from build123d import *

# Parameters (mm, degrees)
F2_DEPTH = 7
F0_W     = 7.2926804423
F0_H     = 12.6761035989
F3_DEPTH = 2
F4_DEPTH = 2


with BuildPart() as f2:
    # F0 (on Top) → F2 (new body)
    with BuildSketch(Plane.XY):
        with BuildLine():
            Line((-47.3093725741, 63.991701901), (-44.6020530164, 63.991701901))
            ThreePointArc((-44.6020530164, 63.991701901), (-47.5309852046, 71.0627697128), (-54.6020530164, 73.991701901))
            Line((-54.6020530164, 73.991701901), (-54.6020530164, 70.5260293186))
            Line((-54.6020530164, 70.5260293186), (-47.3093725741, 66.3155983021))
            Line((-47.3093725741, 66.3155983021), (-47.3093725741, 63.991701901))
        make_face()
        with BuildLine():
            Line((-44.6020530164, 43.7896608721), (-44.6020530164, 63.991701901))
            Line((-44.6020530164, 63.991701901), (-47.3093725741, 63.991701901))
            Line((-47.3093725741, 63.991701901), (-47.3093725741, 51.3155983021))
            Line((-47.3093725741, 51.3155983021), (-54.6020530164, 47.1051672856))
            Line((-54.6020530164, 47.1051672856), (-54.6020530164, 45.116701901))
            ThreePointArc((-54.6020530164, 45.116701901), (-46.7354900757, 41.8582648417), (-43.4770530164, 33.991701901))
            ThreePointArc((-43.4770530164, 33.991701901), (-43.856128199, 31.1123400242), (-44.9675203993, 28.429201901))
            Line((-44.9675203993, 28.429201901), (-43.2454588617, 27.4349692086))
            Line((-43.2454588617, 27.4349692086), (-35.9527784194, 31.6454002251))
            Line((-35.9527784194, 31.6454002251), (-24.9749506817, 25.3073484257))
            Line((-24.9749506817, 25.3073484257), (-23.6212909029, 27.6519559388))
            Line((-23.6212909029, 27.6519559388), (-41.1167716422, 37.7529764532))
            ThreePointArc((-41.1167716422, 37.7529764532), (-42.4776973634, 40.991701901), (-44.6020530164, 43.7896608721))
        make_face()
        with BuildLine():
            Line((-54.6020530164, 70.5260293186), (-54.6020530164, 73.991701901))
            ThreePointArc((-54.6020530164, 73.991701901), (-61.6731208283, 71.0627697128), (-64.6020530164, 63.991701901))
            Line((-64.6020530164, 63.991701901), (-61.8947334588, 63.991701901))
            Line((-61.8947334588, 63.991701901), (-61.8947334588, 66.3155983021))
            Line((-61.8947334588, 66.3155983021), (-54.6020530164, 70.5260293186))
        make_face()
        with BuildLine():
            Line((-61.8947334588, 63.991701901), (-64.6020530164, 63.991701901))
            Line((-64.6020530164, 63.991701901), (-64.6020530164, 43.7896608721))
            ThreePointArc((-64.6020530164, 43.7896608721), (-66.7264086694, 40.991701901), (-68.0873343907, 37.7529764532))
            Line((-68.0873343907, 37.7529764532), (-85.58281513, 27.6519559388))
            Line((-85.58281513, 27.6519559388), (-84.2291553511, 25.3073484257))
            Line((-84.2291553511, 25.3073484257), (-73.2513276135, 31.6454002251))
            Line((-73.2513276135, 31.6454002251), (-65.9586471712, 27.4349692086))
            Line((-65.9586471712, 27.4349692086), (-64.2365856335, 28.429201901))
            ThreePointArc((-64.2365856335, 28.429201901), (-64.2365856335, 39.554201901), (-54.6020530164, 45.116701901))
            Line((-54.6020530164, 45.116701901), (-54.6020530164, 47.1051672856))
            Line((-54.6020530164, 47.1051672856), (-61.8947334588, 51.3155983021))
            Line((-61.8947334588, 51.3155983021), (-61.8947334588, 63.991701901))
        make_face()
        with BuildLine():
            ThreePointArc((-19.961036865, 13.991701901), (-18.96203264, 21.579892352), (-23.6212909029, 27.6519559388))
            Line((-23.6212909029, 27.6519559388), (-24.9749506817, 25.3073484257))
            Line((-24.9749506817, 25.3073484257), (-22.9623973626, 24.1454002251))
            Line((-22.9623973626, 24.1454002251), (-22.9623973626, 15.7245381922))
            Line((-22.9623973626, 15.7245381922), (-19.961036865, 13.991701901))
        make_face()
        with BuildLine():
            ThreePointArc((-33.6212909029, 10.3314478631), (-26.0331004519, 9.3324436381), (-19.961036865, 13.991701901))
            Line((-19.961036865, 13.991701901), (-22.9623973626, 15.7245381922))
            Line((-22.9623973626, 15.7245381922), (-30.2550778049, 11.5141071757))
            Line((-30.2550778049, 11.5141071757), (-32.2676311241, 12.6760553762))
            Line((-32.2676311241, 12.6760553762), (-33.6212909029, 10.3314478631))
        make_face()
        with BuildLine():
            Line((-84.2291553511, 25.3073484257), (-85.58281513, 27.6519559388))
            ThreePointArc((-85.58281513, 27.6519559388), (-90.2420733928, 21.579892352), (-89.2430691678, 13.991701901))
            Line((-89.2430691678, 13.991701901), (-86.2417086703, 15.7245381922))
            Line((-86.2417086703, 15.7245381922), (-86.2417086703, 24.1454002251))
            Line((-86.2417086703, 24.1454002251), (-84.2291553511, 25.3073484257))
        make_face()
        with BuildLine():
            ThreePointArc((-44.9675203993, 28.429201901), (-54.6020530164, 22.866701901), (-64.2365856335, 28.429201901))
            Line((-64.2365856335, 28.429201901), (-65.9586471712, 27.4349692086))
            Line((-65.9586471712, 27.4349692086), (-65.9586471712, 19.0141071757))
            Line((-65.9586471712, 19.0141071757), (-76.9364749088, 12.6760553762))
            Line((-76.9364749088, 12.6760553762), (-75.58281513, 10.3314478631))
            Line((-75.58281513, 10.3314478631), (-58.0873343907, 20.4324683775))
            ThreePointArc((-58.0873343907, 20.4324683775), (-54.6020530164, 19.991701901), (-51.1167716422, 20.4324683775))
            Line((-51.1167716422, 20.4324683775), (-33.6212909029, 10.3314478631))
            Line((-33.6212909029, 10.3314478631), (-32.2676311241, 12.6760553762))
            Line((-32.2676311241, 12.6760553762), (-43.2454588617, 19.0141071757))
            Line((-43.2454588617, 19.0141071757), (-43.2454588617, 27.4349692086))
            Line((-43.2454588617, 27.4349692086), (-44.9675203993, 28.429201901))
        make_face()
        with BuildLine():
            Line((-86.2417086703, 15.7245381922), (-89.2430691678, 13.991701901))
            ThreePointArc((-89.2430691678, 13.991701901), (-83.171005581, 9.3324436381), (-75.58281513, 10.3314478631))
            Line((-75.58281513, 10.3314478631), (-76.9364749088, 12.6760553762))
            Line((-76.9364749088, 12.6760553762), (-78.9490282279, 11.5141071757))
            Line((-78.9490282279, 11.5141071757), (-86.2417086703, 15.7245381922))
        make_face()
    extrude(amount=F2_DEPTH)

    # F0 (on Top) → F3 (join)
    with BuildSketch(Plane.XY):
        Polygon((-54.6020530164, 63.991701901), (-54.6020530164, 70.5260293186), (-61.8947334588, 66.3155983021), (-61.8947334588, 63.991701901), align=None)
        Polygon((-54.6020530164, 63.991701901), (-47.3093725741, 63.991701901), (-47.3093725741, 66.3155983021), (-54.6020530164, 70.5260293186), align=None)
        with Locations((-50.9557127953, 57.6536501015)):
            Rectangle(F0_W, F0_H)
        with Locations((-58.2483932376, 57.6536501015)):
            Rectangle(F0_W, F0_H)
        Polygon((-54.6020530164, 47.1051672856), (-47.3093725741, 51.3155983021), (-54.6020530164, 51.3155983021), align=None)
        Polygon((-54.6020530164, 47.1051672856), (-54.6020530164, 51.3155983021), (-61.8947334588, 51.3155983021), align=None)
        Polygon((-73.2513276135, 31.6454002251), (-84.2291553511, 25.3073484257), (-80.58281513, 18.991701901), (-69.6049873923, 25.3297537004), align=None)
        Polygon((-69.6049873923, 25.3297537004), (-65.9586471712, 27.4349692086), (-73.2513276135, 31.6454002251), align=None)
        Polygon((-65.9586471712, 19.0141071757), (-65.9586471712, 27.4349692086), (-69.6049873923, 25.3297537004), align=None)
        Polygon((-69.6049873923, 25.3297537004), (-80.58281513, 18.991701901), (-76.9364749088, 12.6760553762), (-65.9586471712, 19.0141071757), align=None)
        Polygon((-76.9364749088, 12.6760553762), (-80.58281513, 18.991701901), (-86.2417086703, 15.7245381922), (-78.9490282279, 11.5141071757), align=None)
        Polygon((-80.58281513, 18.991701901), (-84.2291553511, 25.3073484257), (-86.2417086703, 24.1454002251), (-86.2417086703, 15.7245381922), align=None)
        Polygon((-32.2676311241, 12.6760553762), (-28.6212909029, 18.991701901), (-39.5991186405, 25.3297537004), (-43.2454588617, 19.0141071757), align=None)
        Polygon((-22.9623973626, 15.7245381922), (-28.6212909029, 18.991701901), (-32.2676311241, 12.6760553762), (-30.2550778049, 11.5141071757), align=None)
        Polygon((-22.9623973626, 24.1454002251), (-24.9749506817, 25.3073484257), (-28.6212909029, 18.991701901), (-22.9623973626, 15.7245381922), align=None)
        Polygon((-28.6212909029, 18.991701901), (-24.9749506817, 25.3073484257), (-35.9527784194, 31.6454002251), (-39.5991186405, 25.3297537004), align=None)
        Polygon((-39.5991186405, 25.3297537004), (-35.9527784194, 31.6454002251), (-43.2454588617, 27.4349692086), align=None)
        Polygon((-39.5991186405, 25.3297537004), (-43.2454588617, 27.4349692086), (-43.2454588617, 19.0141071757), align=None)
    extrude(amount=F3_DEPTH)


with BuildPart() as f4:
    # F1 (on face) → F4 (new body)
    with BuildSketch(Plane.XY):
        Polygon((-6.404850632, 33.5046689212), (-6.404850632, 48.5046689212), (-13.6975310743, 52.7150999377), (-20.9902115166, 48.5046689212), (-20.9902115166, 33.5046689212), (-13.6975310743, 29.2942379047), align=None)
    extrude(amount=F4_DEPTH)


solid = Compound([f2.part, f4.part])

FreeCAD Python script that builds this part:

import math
import FreeCAD as App
import Part
import Sketcher
Q = App.Units.Quantity


def add_polygon(sketch, points):
    """Adds a closed chain of lines whose ends are joined by coincident constraints."""
    first, n = sketch.GeometryCount, len(points)
    for a, b in zip(points, points[1:] + points[:1]):
        sketch.addGeometry(Part.LineSegment(App.Vector(*a, 0), App.Vector(*b, 0)), False)
    for i in range(n):
        sketch.addConstraint(Sketcher.Constraint("Coincident", first + i, 2, first + (i + 1) % n, 1))

doc = App.newDocument("Part")
params = doc.addObject("Spreadsheet::Sheet", "Params")
for row, (alias, value) in enumerate([
    ("sketch1_radius", "10 mm"),
    ("sketch1_radius2", "14 mm"),
    ("sketch1_height", "15 mm"),
    ("sketch1_height2", "5 mm"),
    ("pad1_length", "7 mm"),
    ("pad2_length", "2 mm"),
    ("sketch3_height", "15 mm"),
    ("pad3_length", "2 mm"),
], start=1):
    params.set(f"A{row}", alias)
    params.set(f"B{row}", "=" + value)
    params.setAlias(f"B{row}", alias)

body = doc.addObject("PartDesign::Body", "Body")

# Sketch on XY plane
sketch1 = body.newObject("Sketcher::SketchObject", "Sketch")
sketch1.AttachmentSupport = (doc.getObject("XY_Plane"), [""])
sketch1.MapMode = "FlatFace"
sketch1.addGeometry(Part.ArcOfCircle(Part.Circle(App.Vector(-54.602053, 63.991702, 0), App.Vector(0, 0, 1), 10), math.radians(0), math.radians(90)), False)  # 0
sketch1.addGeometry(Part.ArcOfCircle(Part.Circle(App.Vector(-54.602053, 63.991702, 0), App.Vector(0, 0, 1), 10), math.radians(90), math.radians(180)), False)  # 1
sketch1.addGeometry(Part.LineSegment(App.Vector(-64.602053, 63.991702, 0), App.Vector(-64.602053, 43.789661, 0)), False)  # 2
sketch1.addGeometry(Part.ArcOfCircle(Part.Circle(App.Vector(-54.602053, 33.991702, 0), App.Vector(0, 0, 1), 14), math.radians(135.584691), math.radians(164.415309)), False)  # 3
sketch1.addGeometry(Part.LineSegment(App.Vector(-68.087334, 37.752976, 0), App.Vector(-85.582815, 27.651956, 0)), False)  # 4
sketch1.addGeometry(Part.ArcOfCircle(Part.Circle(App.Vector(-80.582815, 18.991702, 0), App.Vector(0, 0, 1), 10), math.radians(120), math.radians(210)), False)  # 5
sketch1.addGeometry(Part.ArcOfCircle(Part.Circle(App.Vector(-80.582815, 18.991702, 0), App.Vector(0, 0, 1), 10), math.radians(-150), math.radians(-60)), False)  # 6
sketch1.addGeometry(Part.LineSegment(App.Vector(-75.582815, 10.331448, 0), App.Vector(-58.087334, 20.432468, 0)), False)  # 7
sketch1.addGeometry(Part.ArcOfCircle(Part.Circle(App.Vector(-54.602053, 33.991702, 0), App.Vector(0, 0, 1), 14), math.radians(-104.415309), math.radians(-75.584691)), False)  # 8
sketch1.addGeometry(Part.LineSegment(App.Vector(-51.116772, 20.432468, 0), App.Vector(-33.621291, 10.331448, 0)), False)  # 9
sketch1.addGeometry(Part.ArcOfCircle(Part.Circle(App.Vector(-28.621291, 18.991702, 0), App.Vector(0, 0, 1), 10), math.radians(-120), math.radians(-30)), False)  # 10
sketch1.addGeometry(Part.ArcOfCircle(Part.Circle(App.Vector(-28.621291, 18.991702, 0), App.Vector(0, 0, 1), 10), math.radians(-30), math.radians(60)), False)  # 11
sketch1.addGeometry(Part.LineSegment(App.Vector(-23.621291, 27.651956, 0), App.Vector(-41.116772, 37.752976, 0)), False)  # 12
sketch1.addGeometry(Part.ArcOfCircle(Part.Circle(App.Vector(-54.602053, 33.991702, 0), App.Vector(0, 0, 1), 14), math.radians(15.584691), math.radians(44.415309)), False)  # 13
sketch1.addGeometry(Part.LineSegment(App.Vector(-44.602053, 43.789661, 0), App.Vector(-44.602053, 63.991702, 0)), False)  # 14
add_polygon(sketch1, [(-86.241709, 15.724538), (-86.241709, 24.1454), (-84.229155, 25.307348), (-73.251328, 31.6454), (-65.958647, 27.434969), (-65.958647, 19.014107), (-76.936475, 12.676055), (-78.949028, 11.514107)])  # lines 15-22
sketch1.addGeometry(Part.ArcOfCircle(Part.Circle(App.Vector(-54.602053, 33.991702, 0), App.Vector(0, 0, 1), 11.125), math.radians(-30), math.radians(0)), False)  # 23
sketch1.addGeometry(Part.ArcOfCircle(Part.Circle(App.Vector(-54.602053, 33.991702, 0), App.Vector(0, 0, 1), 11.125), math.radians(0), math.radians(330)), False)  # 24
add_polygon(sketch1, [(-43.245459, 27.434969), (-35.952778, 31.6454), (-24.974951, 25.307348), (-22.962397, 24.1454), (-22.962397, 15.724538), (-30.255078, 11.514107), (-32.267631, 12.676055), (-43.245459, 19.014107)])  # lines 25-32
add_polygon(sketch1, [(-61.894733, 66.315598), (-54.602053, 70.526029), (-47.309373, 66.315598), (-47.309373, 51.315598), (-54.602053, 47.105167), (-61.894733, 51.315598)])  # lines 33-38
sketch1.addConstraint([
    Sketcher.Constraint("Tangent", 0, 2, 1, 1),
    Sketcher.Constraint("Tangent", 1, 2, 2, 1),
    Sketcher.Constraint("Coincident", 2, 2, 3, 1),
    Sketcher.Constraint("Coincident", 3, 2, 4, 1),
    Sketcher.Constraint("Tangent", 4, 2, 5, 1),
    Sketcher.Constraint("Tangent", 5, 2, 6, 1),
    Sketcher.Constraint("Tangent", 6, 2, 7, 1),
    Sketcher.Constraint("Coincident", 7, 2, 8, 1),
    Sketcher.Constraint("Coincident", 8, 2, 9, 1),
    Sketcher.Constraint("Tangent", 9, 2, 10, 1),
    Sketcher.Constraint("Tangent", 10, 2, 11, 1),
    Sketcher.Constraint("Tangent", 11, 2, 12, 1),
    Sketcher.Constraint("Coincident", 12, 2, 13, 1),
    Sketcher.Constraint("Coincident", 13, 2, 14, 1),
    Sketcher.Constraint("Tangent", 14, 2, 0, 1),
    Sketcher.Constraint("Tangent", 23, 1, 24, 2),
    Sketcher.Constraint("Coincident", 24, 1, 23, 2),
    Sketcher.Constraint("Vertical", 2),
    Sketcher.Constraint("Vertical", 14),
    Sketcher.Constraint("Vertical", 15),
    Sketcher.Constraint("Vertical", 19),
    Sketcher.Constraint("Vertical", 28),
    Sketcher.Constraint("Vertical", 32),
    Sketcher.Constraint("Vertical", 35),
    Sketcher.Constraint("Vertical", 38),
    Sketcher.Constraint("Coincident", 8, 3, 3, 3),
    Sketcher.Constraint("Coincident", 13, 3, 3, 3),
    Sketcher.Constraint("Coincident", 23, 3, 3, 3),
    Sketcher.Constraint("Equal", 0, 1),
    Sketcher.Constraint("Equal", 1, 5),
    Sketcher.Constraint("Equal", 5, 6),
    Sketcher.Constraint("Equal", 3, 8),
    Sketcher.Constraint("Equal", 6, 10),
    Sketcher.Constraint("Equal", 10, 11),
    Sketcher.Constraint("Equal", 8, 13),
    Sketcher.Constraint("Parallel", 4, 7),
    Sketcher.Constraint("Parallel", 9, 12),
    Sketcher.Constraint("Parallel", 7, 16),
    Sketcher.Constraint("Parallel", 16, 17),
    Sketcher.Constraint("Parallel", 12, 18),
    Sketcher.Constraint("Parallel", 17, 20),
    Sketcher.Constraint("Parallel", 20, 21),
    Sketcher.Constraint("Parallel", 18, 22),
    Sketcher.Constraint("Parallel", 21, 25),
    Sketcher.Constraint("Parallel", 22, 26),
    Sketcher.Constraint("Parallel", 26, 27),
    Sketcher.Constraint("Parallel", 25, 29),
    Sketcher.Constraint("Parallel", 27, 30),
    Sketcher.Constraint("Parallel", 30, 31),
    Sketcher.Constraint("Parallel", 29, 33),
    Sketcher.Constraint("Parallel", 31, 34),
    Sketcher.Constraint("Parallel", 33, 36),
    Sketcher.Constraint("Parallel", 34, 37),
    Sketcher.Constraint("Horizontal", 6, 3, 10, 3),
    Sketcher.Constraint("Horizontal", 7, 2, 8, 2),
    Sketcher.Constraint("Horizontal", 6, 2, 9, 2),
    Sketcher.Constraint("Horizontal", 5, 2, 10, 2),
    Sketcher.Constraint("Horizontal", 2, 2, 13, 2),
    Sketcher.Constraint("Horizontal", 23, 3, 24, 1),
    Sketcher.Constraint("Horizontal", 17, 2, 25, 2),
    Sketcher.Constraint("Horizontal", 16, 2, 26, 2),
    Sketcher.Constraint("Horizontal", 15, 2, 27, 2),
    Sketcher.Constraint("Horizontal", 22, 2, 28, 2),
    Sketcher.Constraint("Horizontal", 21, 2, 29, 2),
    Sketcher.Constraint("Horizontal", 20, 2, 30, 2),
    Sketcher.Constraint("Horizontal", 19, 2, 31, 2),
    Sketcher.Constraint("Horizontal", 35, 2, 37, 2),
    Sketcher.Constraint("Horizontal", 34, 2, 38, 2),
    Sketcher.Constraint("Vertical", 24, 3, 0, 2),
    Sketcher.Constraint("Vertical", 0, 2, 33, 2),
    Sketcher.Constraint("Equal", 15, 19),
    Sketcher.Constraint("Equal", 4, 7),
    Sketcher.Constraint("Equal", 17, 20),
    Sketcher.Constraint("Equal", 29, 33),
    Sketcher.Constraint("Radius", 0, 10.0),
    Sketcher.Constraint("Radius", 3, 14.0),
    Sketcher.Constraint("DistanceY", 35, 2, 35, 1, 15.0),
    Sketcher.Constraint("Angle", 4, Q("-150 deg")),
    Sketcher.Constraint("Radius", 23, 11.125),
    Sketcher.Constraint("DistanceY", 3, 3, 0, 3, 30.0),
    Sketcher.Constraint("DistanceY", 5, 3, 3, 3, 15.0),
    Sketcher.Constraint("DistanceY", 5, 2, 5, 3, 5.0),
    Sketcher.Constraint("DistanceY", -1, 1, 0, 3, 63.991702),
    Sketcher.Constraint("DistanceY", -1, 1, 15, 2, 24.1454),
    Sketcher.Constraint("DistanceY", -1, 1, 17, 2, 31.6454),
    Sketcher.Constraint("DistanceY", -1, 1, 23, 1, 28.429202),
    Sketcher.Constraint("DistanceY", -1, 1, 34, 2, 66.315598),
    Sketcher.Constraint("DistanceY", 7, 2, 18, 2, 7.002501),
    Sketcher.Constraint("DistanceY", 15, 1, 15, 2, 8.420862),
    Sketcher.Constraint("DistanceX", 10, 3, -1, 1, 28.621291),
    Sketcher.Constraint("DistanceX", 15, 2, -1, 1, 86.241709),
    Sketcher.Constraint("DistanceY", -1, 1, 16, 2, 25.307348),
    Sketcher.Constraint("DistanceX", 25, 2, -1, 1, 35.952778),
])
sketch1.setExpression("Constraints[96]", "Params.sketch1_radius")
sketch1.setExpression("Constraints[97]", "Params.sketch1_radius2")
sketch1.setExpression("Constraints[98]", "Params.sketch1_height")
sketch1.setExpression("Constraints[103]", "Params.sketch1_height2")
pad1 = body.newObject("PartDesign::Pad", "Pad")
pad1.Profile = sketch1
pad1.setExpression("Length", "Params.pad1_length")

# Sketch on XY plane
sketch2 = body.newObject("Sketcher::SketchObject", "Sketch001")
sketch2.AttachmentSupport = (doc.getObject("XY_Plane"), [""])
sketch2.MapMode = "FlatFace"
add_polygon(sketch2, [(-54.602053, 70.526029), (-61.894733, 66.315598), (-61.894733, 63.991702), (-61.894733, 51.315598), (-54.602053, 47.105167), (-47.309373, 51.315598), (-47.309373, 63.991702), (-47.309373, 66.315598)])  # lines 0-7
add_polygon(sketch2, [(-73.251328, 31.6454), (-84.229155, 25.307348), (-86.241709, 24.1454), (-86.241709, 15.724538), (-78.949028, 11.514107), (-76.936475, 12.676055), (-65.958647, 19.014107), (-65.958647, 27.434969)])  # lines 8-15
add_polygon(sketch2, [(-43.245459, 19.014107), (-32.267631, 12.676055), (-30.255078, 11.514107), (-22.962397, 15.724538), (-22.962397, 24.1454), (-24.974951, 25.307348), (-35.952778, 31.6454), (-43.245459, 27.434969)])  # lines 16-23
sketch2.addConstraint([
    Sketcher.Constraint("Vertical", 1),
    Sketcher.Constraint("Vertical", 2),
    Sketcher.Constraint("Vertical", 5),
    Sketcher.Constraint("Vertical", 6),
    Sketcher.Constraint("Vertical", 10),
    Sketcher.Constraint("Vertical", 14),
    Sketcher.Constraint("Vertical", 19),
    Sketcher.Constraint("Vertical", 23),
    Sketcher.Constraint("Parallel", 0, 4),
    Sketcher.Constraint("Parallel", 3, 7),
    Sketcher.Constraint("Parallel", 4, 8),
    Sketcher.Constraint("Parallel", 8, 9),
    Sketcher.Constraint("Parallel", 7, 11),
    Sketcher.Constraint("Parallel", 9, 12),
    Sketcher.Constraint("Parallel", 12, 13),
    Sketcher.Constraint("Parallel", 11, 15),
    Sketcher.Constraint("Parallel", 15, 16),
    Sketcher.Constraint("Parallel", 16, 17),
    Sketcher.Constraint("Parallel", 13, 18),
    Sketcher.Constraint("Parallel", 17, 20),
    Sketcher.Constraint("Parallel", 20, 21),
    Sketcher.Constraint("Parallel", 18, 22),
    Sketcher.Constraint("Horizontal", 2, 2, 4, 2),
    Sketcher.Constraint("Horizontal", 1, 2, 5, 2),
    Sketcher.Constraint("Horizontal", 0, 2, 6, 2),
    Sketcher.Constraint("Horizontal", 12, 2, 16, 2),
    Sketcher.Constraint("Horizontal", 11, 2, 17, 2),
    Sketcher.Constraint("Horizontal", 10, 2, 18, 2),
    Sketcher.Constraint("Horizontal", 9, 2, 19, 2),
    Sketcher.Constraint("Horizontal", 8, 2, 20, 2),
    Sketcher.Constraint("Horizontal", 15, 2, 21, 2),
    Sketcher.Constraint("Horizontal", 14, 2, 22, 2),
    Sketcher.Constraint("Vertical", 3, 2, 7, 2),
    Sketcher.Constraint("Equal", 10, 14),
    Sketcher.Constraint("Equal", 7, 11),
    Sketcher.Constraint("Equal", 9, 12),
    Sketcher.Constraint("Angle", 0, Q("-150 deg")),
    Sketcher.Constraint("DistanceY", 2, 2, 0, 2, 15.0),
    Sketcher.Constraint("DistanceY", 11, 2, 13, 2, 7.5),
    Sketcher.Constraint("DistanceY", -1, 1, 0, 2, 66.315598),
    Sketcher.Constraint("DistanceY", -1, 1, 1, 2, 63.991702),
    Sketcher.Constraint("DistanceY", -1, 1, 9, 2, 24.1454),
    Sketcher.Constraint("DistanceX", 21, 2, 17, 2, 5.697701),
    Sketcher.Constraint("DistanceY", 10, 2, 10, 1, 8.420862),
    Sketcher.Constraint("DistanceY", -1, 1, 8, 2, 25.307348),
    Sketcher.Constraint("DistanceX", 9, 2, -1, 1, 86.241709),
    Sketcher.Constraint("DistanceX", 16, 2, -1, 1, 32.267631),
    Sketcher.Constraint("DistanceX", 8, 2, 2, 2, 22.334422),
])
pad2 = body.newObject("PartDesign::Pad", "Pad001")
pad2.Profile = sketch2
pad2.setExpression("Length", "Params.pad2_length")
body2 = doc.addObject("PartDesign::Body", "Body001")

# Sketch on XY plane
sketch3 = body2.newObject("Sketcher::SketchObject", "Sketch002")
sketch3.AttachmentSupport = (doc.getObject("XY_Plane001"), [""])
sketch3.MapMode = "FlatFace"
add_polygon(sketch3, [(-6.404851, 33.504669), (-6.404851, 48.504669), (-13.697531, 52.7151), (-20.990212, 48.504669), (-20.990212, 33.504669), (-13.697531, 29.294238)])  # lines 0-5
sketch3.addConstraint([
    Sketcher.Constraint("Vertical", 0),
    Sketcher.Constraint("Vertical", 3),
    Sketcher.Constraint("Parallel", 1, 4),
    Sketcher.Constraint("Parallel", 2, 5),
    Sketcher.Constraint("Horizontal", 0, 2, 2, 2),
    Sketcher.Constraint("Horizontal", 3, 2, 5, 2),
    Sketcher.Constraint("Vertical", 1, 2, 4, 2),
    Sketcher.Constraint("DistanceY", 0, 1, 0, 2, 15.0),
    Sketcher.Constraint("Angle", 1, Q("150 deg")),
    Sketcher.Constraint("DistanceY", -1, 1, 1, 2, 52.7151),
    Sketcher.Constraint("DistanceX", 0, 2, -1, 1, 6.404851),
    Sketcher.Constraint("DistanceY", -1, 1, 0, 2, 48.504669),
])
sketch3.setExpression("Constraints[13]", "Params.sketch3_height")
pad3 = body2.newObject("PartDesign::Pad", "Pad002")
pad3.Profile = sketch3
pad3.setExpression("Length", "Params.pad3_length")

doc.recompute()
